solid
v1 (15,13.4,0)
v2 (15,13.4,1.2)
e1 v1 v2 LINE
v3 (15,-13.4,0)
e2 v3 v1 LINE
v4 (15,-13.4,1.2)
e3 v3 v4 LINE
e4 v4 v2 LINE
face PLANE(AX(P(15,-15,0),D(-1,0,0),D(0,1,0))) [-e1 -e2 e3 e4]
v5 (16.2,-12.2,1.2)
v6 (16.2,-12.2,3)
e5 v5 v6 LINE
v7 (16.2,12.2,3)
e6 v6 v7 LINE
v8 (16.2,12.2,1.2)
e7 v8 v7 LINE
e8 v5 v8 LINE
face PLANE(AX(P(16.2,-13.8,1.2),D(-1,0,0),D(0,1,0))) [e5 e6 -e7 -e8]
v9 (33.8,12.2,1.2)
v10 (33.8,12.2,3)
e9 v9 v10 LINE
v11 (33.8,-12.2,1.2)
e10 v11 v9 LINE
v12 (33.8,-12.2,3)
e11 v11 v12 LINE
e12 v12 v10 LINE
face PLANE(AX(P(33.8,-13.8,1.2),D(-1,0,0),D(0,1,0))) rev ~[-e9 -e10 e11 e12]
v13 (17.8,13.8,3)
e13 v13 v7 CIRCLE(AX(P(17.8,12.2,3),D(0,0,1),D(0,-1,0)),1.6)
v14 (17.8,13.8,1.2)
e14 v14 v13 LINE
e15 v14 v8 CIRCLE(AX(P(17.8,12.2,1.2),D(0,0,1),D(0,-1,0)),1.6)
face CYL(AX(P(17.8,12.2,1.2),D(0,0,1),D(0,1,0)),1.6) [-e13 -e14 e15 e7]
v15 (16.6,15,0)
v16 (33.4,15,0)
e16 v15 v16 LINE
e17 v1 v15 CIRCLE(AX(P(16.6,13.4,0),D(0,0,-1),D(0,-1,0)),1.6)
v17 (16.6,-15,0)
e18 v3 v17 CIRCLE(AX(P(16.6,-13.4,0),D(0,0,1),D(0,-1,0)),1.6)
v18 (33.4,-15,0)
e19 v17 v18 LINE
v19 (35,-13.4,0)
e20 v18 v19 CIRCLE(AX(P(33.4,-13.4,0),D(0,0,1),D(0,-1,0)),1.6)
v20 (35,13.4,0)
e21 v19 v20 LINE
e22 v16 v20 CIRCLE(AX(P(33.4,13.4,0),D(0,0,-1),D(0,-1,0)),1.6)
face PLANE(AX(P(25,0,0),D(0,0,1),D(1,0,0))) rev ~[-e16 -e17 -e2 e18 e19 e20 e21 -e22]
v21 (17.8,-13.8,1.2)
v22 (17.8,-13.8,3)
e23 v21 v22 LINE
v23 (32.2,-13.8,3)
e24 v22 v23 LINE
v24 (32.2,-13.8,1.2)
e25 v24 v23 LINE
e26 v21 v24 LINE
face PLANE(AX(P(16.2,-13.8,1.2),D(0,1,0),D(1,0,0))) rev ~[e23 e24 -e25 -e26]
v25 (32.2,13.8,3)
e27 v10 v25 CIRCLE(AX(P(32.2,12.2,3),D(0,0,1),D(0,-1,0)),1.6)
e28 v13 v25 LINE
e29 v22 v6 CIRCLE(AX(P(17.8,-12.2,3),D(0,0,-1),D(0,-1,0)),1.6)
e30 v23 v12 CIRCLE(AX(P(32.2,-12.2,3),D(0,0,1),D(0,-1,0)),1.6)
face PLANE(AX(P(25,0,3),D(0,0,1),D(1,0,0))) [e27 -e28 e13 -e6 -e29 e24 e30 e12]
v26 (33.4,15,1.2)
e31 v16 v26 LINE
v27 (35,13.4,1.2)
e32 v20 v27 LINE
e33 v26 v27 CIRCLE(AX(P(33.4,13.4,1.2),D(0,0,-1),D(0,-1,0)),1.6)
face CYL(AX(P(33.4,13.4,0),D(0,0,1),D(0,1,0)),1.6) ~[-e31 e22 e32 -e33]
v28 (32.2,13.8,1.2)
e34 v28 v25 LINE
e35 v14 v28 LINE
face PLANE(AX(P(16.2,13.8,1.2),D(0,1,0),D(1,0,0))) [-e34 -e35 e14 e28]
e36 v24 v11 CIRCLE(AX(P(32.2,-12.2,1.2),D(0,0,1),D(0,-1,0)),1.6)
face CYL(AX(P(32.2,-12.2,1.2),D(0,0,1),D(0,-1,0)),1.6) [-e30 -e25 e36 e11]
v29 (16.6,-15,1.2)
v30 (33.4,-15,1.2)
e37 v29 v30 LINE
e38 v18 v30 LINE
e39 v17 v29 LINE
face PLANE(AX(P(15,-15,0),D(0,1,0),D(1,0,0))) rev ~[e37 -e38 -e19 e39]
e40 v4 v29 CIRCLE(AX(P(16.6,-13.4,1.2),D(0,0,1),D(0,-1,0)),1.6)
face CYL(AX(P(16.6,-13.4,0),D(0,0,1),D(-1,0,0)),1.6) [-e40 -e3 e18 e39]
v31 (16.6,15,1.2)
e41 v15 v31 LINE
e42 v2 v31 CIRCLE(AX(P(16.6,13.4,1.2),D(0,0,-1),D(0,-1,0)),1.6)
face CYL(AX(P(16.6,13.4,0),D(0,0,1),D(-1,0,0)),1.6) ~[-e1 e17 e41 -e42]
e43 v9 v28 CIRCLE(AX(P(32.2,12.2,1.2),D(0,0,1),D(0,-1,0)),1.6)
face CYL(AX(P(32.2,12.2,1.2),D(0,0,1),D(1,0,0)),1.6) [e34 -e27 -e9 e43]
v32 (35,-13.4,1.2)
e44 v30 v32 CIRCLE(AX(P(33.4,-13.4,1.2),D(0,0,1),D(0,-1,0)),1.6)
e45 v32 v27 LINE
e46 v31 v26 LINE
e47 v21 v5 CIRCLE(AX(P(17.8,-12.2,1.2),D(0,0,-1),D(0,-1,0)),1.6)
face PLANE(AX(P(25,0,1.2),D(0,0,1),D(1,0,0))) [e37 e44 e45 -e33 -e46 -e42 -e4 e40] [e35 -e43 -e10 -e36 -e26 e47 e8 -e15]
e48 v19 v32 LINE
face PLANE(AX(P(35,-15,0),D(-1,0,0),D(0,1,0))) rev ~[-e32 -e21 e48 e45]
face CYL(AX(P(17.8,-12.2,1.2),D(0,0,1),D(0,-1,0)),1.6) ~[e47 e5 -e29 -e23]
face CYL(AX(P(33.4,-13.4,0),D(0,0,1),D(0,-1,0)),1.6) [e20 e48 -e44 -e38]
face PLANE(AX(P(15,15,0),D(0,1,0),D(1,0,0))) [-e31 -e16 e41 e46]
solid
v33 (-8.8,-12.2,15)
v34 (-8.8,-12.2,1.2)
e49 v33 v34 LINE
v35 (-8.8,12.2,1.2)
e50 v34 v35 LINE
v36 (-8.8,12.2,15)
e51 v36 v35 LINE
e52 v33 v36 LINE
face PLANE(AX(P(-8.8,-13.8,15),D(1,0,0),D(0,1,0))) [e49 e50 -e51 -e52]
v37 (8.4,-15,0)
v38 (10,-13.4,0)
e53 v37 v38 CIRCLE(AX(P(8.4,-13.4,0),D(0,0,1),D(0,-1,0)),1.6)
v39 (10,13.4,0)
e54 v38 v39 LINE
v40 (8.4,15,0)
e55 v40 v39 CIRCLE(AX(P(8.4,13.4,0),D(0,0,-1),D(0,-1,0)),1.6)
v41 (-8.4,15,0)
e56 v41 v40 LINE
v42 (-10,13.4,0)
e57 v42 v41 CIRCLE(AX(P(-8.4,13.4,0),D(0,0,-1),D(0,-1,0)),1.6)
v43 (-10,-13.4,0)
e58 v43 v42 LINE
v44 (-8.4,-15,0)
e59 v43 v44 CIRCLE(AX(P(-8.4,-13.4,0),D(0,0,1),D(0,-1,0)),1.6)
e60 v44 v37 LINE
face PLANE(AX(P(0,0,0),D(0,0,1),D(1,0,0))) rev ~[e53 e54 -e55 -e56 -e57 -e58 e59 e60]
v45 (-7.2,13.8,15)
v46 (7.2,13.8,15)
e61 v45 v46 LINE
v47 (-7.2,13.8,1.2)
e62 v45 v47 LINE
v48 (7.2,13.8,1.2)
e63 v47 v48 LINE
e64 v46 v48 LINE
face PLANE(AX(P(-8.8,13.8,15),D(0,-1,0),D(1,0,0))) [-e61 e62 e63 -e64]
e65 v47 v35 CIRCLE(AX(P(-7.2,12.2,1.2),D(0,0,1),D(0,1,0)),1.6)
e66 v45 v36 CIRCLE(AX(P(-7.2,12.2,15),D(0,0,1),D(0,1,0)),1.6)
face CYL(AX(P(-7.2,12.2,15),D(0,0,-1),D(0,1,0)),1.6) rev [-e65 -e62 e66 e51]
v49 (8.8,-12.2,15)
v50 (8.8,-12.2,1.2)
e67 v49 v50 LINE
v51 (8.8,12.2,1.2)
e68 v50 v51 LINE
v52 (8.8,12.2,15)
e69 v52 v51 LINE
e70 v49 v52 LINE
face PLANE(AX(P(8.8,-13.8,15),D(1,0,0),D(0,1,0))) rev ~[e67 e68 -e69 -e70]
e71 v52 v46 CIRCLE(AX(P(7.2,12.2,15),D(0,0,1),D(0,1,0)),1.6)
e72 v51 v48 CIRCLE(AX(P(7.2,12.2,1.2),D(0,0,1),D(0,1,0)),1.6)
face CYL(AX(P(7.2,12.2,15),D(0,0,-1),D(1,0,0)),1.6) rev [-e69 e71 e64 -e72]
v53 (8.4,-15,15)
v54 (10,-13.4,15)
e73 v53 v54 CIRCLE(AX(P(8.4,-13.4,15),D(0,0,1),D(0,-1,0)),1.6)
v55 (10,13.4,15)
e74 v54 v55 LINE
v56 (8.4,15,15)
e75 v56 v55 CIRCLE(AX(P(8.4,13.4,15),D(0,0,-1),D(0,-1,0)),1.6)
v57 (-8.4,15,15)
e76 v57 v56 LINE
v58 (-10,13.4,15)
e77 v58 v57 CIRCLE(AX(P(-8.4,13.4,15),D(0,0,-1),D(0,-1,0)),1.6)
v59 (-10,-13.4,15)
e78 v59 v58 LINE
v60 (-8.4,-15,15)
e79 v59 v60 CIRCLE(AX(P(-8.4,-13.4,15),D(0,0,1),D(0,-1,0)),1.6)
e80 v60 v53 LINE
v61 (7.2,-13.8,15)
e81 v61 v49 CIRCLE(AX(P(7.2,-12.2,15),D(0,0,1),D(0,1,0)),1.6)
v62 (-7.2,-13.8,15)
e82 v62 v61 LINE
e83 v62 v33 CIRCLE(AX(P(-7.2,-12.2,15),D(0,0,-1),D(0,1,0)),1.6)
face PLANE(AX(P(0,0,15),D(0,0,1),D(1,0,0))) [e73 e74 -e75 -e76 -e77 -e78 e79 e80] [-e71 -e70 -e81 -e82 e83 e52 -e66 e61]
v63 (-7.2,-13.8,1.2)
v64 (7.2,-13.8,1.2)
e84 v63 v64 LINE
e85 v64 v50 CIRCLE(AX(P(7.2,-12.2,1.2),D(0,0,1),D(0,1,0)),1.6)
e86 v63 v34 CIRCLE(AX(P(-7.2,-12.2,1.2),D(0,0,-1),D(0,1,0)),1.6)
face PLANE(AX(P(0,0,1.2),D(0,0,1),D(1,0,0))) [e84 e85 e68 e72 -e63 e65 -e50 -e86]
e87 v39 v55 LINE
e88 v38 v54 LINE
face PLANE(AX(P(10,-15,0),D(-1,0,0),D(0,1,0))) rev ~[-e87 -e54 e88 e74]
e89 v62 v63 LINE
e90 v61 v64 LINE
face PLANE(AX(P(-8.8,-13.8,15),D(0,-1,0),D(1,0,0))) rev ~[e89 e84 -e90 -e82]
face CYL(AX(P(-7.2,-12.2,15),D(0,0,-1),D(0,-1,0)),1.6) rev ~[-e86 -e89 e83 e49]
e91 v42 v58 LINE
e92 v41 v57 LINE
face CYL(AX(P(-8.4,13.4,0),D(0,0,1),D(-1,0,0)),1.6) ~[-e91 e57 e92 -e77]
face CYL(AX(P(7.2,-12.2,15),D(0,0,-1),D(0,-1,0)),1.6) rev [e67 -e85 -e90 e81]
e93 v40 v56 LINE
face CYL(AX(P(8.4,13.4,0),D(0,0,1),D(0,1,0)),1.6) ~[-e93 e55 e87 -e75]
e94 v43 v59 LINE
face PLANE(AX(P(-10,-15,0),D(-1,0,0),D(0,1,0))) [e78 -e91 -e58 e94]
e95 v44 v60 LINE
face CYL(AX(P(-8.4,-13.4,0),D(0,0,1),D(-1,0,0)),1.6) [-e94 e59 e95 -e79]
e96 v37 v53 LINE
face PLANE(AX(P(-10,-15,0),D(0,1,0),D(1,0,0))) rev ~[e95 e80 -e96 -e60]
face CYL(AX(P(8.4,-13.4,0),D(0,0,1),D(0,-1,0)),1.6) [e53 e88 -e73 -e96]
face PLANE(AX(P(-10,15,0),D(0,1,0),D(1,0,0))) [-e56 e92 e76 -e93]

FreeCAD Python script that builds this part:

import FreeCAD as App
import Part
import Sketcher


def edges_at(feature, points):
    """Names of the edges that pass closest to the given points."""
    edges = feature.Shape.Edges
    near = lambda p: min(range(len(edges)), key=lambda i: edges[i].distToShape(Part.Vertex(*p))[0])
    return sorted({f"Edge{near(p) + 1}" for p in points})

doc = App.newDocument("Part")
body = doc.addObject("PartDesign::Body", "Body")

sketch1 = body.newObject("Sketcher::SketchObject", "Sketch")
sketch1.AttachmentSupport = (doc.getObject("XY_Plane"), [""])
sketch1.MapMode = "FlatFace"
sketch1.addGeometry([
    Part.LineSegment(App.Vector(-10, 15, 0), App.Vector(-10, -15, 0)),
    Part.LineSegment(App.Vector(-10, -15, 0), App.Vector(10, -15, 0)),
    Part.LineSegment(App.Vector(10, -15, 0), App.Vector(10, 15, 0)),
    Part.LineSegment(App.Vector(10, 15, 0), App.Vector(-10, 15, 0)),
], False)
sketch1.addConstraint([
    Sketcher.Constraint("Coincident", 0, 2, 1, 1),
    Sketcher.Constraint("Coincident", 1, 2, 2, 1),
    Sketcher.Constraint("Coincident", 2, 2, 3, 1),
    Sketcher.Constraint("Coincident", 3, 2, 0, 1),
    Sketcher.Constraint("Vertical", 0),
    Sketcher.Constraint("Horizontal", 1),
    Sketcher.Constraint("Vertical", 2),
    Sketcher.Constraint("Horizontal", 3),
    Sketcher.Constraint("Symmetric", 0, 2, 2, 2, -1, 1),
    Sketcher.Constraint("DistanceX", 1, 1, 1, 2, 20.0),
    Sketcher.Constraint("DistanceY", 0, 2, 0, 1, 30.0),
])
pad1 = body.newObject("PartDesign::Pad", "Pad")
pad1.Profile = sketch1
pad1.Length = 15

sketch2 = body.newObject("Sketcher::SketchObject", "Sketch001")
sketch2.AttachmentSupport = (doc.getObject("XY_Plane"), [""])
sketch2.MapMode = "FlatFace"
sketch2.AttachmentOffset = App.Placement(App.Vector(0, 0, 15), App.Rotation())
sketch2.addGeometry([
    Part.LineSegment(App.Vector(-8.8, 13.8, 0), App.Vector(-8.8, -13.8, 0)),
    Part.LineSegment(App.Vector(-8.8, -13.8, 0), App.Vector(8.8, -13.8, 0)),
    Part.LineSegment(App.Vector(8.8, -13.8, 0), App.Vector(8.8, 13.8, 0)),
    Part.LineSegment(App.Vector(8.8, 13.8, 0), App.Vector(-8.8, 13.8, 0)),
], False)
sketch2.addConstraint([
    Sketcher.Constraint("Coincident", 0, 2, 1, 1),
    Sketcher.Constraint("Coincident", 1, 2, 2, 1),
    Sketcher.Constraint("Coincident", 2, 2, 3, 1),
    Sketcher.Constraint("Coincident", 3, 2, 0, 1),
    Sketcher.Constraint("Vertical", 0),
    Sketcher.Constraint("Horizontal", 1),
    Sketcher.Constraint("Vertical", 2),
    Sketcher.Constraint("Horizontal", 3),
    Sketcher.Constraint("Symmetric", 0, 2, 2, 2, -1, 1),
    Sketcher.Constraint("DistanceX", 1, 1, 1, 2, 17.6),
    Sketcher.Constraint("DistanceY", 0, 2, 0, 1, 27.6),
])
pocket1 = body.newObject("PartDesign::Pocket", "Pocket")
pocket1.Profile = sketch2
pocket1.Length = 13.8
doc.recompute()

fillet = body.newObject("PartDesign::Fillet", "Fillet")
fillet.Base = (pocket1, edges_at(pocket1, [
    (10, 15, 7.5),
    (10, -15, 7.5),
    (-10, -15, 7.5),
    (-10, 15, 7.5),
    (-8.8, 13.8, 8.1),
    (8.8, 13.8, 8.1),
    (8.8, -13.8, 8.1),
    (-8.8, -13.8, 8.1),
]))
fillet.Radius = 1.6
body2 = doc.addObject("PartDesign::Body", "Body001")

sketch3 = body2.newObject("Sketcher::SketchObject", "Sketch002")
sketch3.AttachmentSupport = (doc.getObject("XY_Plane001"), [""])
sketch3.MapMode = "FlatFace"
sketch3.addGeometry([
    Part.LineSegment(App.Vector(15, 15, 0), App.Vector(15, -15, 0)),
    Part.LineSegment(App.Vector(15, -15, 0), App.Vector(35, -15, 0)),
    Part.LineSegment(App.Vector(35, -15, 0), App.Vector(35, 15, 0)),
    Part.LineSegment(App.Vector(35, 15, 0), App.Vector(15, 15, 0)),
], False)
sketch3.addConstraint([
    Sketcher.Constraint("Coincident", 0, 2, 1, 1),
    Sketcher.Constraint("Coincident", 1, 2, 2, 1),
    Sketcher.Constraint("Coincident", 2, 2, 3, 1),
    Sketcher.Constraint("Coincident", 3, 2, 0, 1),
    Sketcher.Constraint("Vertical", 0),
    Sketcher.Constraint("Horizontal", 1),
    Sketcher.Constraint("Vertical", 2),
    Sketcher.Constraint("Horizontal", 3),
    Sketcher.Constraint("DistanceX", 1, 1, 1, 2, 20.0),
    Sketcher.Constraint("DistanceY", 0, 2, 0, 1, 30.0),
    Sketcher.Constraint("DistanceX", -1, 1, 0, 2, 15.0),
    Sketcher.Constraint("DistanceY", 0, 2, -1, 1, 15.0),
])
pad2 = body2.newObject("PartDesign::Pad", "Pad001")
pad2.Profile = sketch3
pad2.Length = 1.2

sketch4 = body2.newObject("Sketcher::SketchObject", "Sketch003")
sketch4.AttachmentSupport = (doc.getObject("XY_Plane001"), [""])
sketch4.MapMode = "FlatFace"
sketch4.AttachmentOffset = App.Placement(App.Vector(0, 0, 1.2), App.Rotation())
sketch4.addGeometry([
    Part.LineSegment(App.Vector(16.2, 13.8, 0), App.Vector(16.2, -13.8, 0)),
    Part.LineSegment(App.Vector(16.2, -13.8, 0), App.Vector(33.8, -13.8, 0)),
    Part.LineSegment(App.Vector(33.8, -13.8, 0), App.Vector(33.8, 13.8, 0)),
    Part.LineSegment(App.Vector(33.8, 13.8, 0), App.Vector(16.2, 13.8, 0)),
], False)
sketch4.addConstraint([
    Sketcher.Constraint("Coincident", 0, 2, 1, 1),
    Sketcher.Constraint("Coincident", 1, 2, 2, 1),
    Sketcher.Constraint("Coincident", 2, 2, 3, 1),
    Sketcher.Constraint("Coincident", 3, 2, 0, 1),
    Sketcher.Constraint("Vertical", 0),
    Sketcher.Constraint("Horizontal", 1),
    Sketcher.Constraint("Vertical", 2),
    Sketcher.Constraint("Horizontal", 3),
    Sketcher.Constraint("DistanceX", 1, 1, 1, 2, 17.6),
    Sketcher.Constraint("DistanceY", 0, 2, 0, 1, 27.6),
    Sketcher.Constraint("DistanceX", -1, 1, 0, 2, 16.2),
    Sketcher.Constraint("DistanceY", 0, 2, -1, 1, 13.8),
])
pad3 = body2.newObject("PartDesign::Pad", "Pad002")
pad3.Profile = sketch4
pad3.Length = 1.8
doc.recompute()

fillet2 = body2.newObject("PartDesign::Fillet", "Fillet001")
fillet2.Base = (pad3, edges_at(pad3, [
    (35, 15, 0.6),
    (33.8, 13.8, 2.1),
    (33.8, -13.8, 2.1),
    (35, -15, 0.6),
    (16.2, -13.8, 2.1),
    (15, -15, 0.6),
    (15, 15, 0.6),
    (16.2, 13.8, 2.1),
]))
fillet2.Radius = 1.6

doc.recompute()
